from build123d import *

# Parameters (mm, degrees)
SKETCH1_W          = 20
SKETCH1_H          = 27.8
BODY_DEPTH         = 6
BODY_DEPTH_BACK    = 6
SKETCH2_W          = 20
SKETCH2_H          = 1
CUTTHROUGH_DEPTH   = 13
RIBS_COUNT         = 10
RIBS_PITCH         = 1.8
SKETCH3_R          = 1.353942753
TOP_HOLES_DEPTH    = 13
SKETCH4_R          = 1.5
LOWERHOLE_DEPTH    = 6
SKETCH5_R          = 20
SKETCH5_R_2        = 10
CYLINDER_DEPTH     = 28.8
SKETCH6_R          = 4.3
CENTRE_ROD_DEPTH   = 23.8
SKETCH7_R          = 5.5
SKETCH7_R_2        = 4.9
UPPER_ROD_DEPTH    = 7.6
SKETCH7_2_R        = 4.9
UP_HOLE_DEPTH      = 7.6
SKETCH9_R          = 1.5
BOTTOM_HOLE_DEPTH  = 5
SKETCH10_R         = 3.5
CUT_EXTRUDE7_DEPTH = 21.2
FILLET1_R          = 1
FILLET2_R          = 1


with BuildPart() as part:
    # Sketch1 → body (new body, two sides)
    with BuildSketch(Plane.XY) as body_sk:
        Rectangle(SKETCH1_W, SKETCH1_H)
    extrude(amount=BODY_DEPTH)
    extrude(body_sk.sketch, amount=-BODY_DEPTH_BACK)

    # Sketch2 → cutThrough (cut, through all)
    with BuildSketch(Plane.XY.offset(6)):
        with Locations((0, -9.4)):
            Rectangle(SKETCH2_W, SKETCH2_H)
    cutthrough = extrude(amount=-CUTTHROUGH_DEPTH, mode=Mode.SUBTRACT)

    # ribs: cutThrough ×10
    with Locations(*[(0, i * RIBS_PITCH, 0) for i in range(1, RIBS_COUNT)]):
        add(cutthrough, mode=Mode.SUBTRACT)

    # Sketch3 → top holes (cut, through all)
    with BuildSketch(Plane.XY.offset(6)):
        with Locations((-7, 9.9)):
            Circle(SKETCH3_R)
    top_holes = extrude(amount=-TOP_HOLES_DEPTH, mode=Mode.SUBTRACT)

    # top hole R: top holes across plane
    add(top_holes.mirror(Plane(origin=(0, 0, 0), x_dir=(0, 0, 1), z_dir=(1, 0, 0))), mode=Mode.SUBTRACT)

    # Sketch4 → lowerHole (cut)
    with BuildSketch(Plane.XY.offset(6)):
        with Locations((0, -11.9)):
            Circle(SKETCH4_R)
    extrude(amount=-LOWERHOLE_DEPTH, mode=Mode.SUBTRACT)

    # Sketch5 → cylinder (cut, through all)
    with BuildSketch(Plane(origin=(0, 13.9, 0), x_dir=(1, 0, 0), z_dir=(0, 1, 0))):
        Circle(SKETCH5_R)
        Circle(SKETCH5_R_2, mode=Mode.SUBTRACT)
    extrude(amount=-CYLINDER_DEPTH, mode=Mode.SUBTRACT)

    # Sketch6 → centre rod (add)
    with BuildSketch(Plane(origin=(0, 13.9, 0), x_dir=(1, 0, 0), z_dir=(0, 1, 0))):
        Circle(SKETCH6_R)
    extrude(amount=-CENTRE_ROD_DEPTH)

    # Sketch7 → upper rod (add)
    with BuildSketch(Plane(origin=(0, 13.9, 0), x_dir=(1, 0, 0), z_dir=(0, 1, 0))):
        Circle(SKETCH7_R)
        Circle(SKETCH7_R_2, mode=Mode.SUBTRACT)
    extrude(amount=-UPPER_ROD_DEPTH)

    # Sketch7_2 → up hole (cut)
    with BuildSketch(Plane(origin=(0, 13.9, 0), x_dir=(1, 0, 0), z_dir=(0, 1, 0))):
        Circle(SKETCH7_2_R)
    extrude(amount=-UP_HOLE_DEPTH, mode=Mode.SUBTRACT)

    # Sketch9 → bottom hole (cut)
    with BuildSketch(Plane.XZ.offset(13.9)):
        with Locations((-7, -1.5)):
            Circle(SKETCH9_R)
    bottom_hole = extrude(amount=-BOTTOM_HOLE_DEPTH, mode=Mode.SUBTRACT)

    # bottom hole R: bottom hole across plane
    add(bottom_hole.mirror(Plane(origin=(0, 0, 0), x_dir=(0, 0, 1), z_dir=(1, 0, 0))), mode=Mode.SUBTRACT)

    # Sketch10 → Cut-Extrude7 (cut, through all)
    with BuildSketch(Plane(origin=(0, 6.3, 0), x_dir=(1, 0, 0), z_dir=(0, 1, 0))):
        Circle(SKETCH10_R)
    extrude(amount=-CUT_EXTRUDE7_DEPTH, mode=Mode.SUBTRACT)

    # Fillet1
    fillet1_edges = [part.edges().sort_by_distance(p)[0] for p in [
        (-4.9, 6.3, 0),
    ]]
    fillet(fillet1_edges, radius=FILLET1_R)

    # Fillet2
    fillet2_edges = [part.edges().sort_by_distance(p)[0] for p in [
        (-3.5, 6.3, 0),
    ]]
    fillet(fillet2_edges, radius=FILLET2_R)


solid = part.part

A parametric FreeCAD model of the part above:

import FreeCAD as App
import Part
import Sketcher
from FreeCAD import Vector


def edges_at(feature, points):
    """Names of the edges that pass closest to the given points."""
    edges = feature.Shape.Edges
    near = lambda p: min(range(len(edges)), key=lambda i: edges[i].distToShape(Part.Vertex(*p))[0])
    return sorted({f"Edge{near(p) + 1}" for p in points})

doc = App.newDocument("Part")
body = doc.addObject("PartDesign::Body", "Body")
body.AllowCompound = True

sketch1 = doc.addObject("Sketcher::SketchObject", "Sketch")
body.addObject(sketch1)
sketch1.AttachmentSupport = (doc.XY_Plane, [""])
sketch1.MapMode = "FlatFace"
sketch1.addGeometry(Part.LineSegment(Vector(-10, 14, 0), Vector(-10, -14, 0)), False)
sketch1.addGeometry(Part.LineSegment(Vector(-10, -14, 0), Vector(10, -14, 0)), False)
sketch1.addGeometry(Part.LineSegment(Vector(10, -14, 0), Vector(10, 14, 0)), False)
sketch1.addGeometry(Part.LineSegment(Vector(10, 14, 0), Vector(-10, 14, 0)), False)
sketch1.addConstraint(Sketcher.Constraint("Coincident", 0, 2, 1, 1))
sketch1.addConstraint(Sketcher.Constraint("Coincident", 1, 2, 2, 1))
sketch1.addConstraint(Sketcher.Constraint("Coincident", 2, 2, 3, 1))
sketch1.addConstraint(Sketcher.Constraint("Coincident", 3, 2, 0, 1))
sketch1.addConstraint(Sketcher.Constraint("Vertical", 0))
sketch1.addConstraint(Sketcher.Constraint("Horizontal", 1))
sketch1.addConstraint(Sketcher.Constraint("Vertical", 2))
sketch1.addConstraint(Sketcher.Constraint("Horizontal", 3))
sketch1.addConstraint(Sketcher.Constraint("Symmetric", 0, 2, 2, 2, -1, 1))
sketch1.addConstraint(Sketcher.Constraint("DistanceX", 1, 1, 1, 2, 20.0))
sketch1.addConstraint(Sketcher.Constraint("DistanceY", 0, 2, 0, 1, 27.8))
pad1 = doc.addObject("PartDesign::Pad", "Pad")
body.addObject(pad1)
pad1.Profile = sketch1
pad1.Type = "TwoLengths"
pad1.Length = 6
pad1.Length2 = 6

sketch2 = doc.addObject("Sketcher::SketchObject", "Sketch001")
body.addObject(sketch2)
sketch2.AttachmentSupport = (doc.XY_Plane, [""])
sketch2.MapMode = "FlatFace"
sketch2.AttachmentOffset = App.Placement(Vector(0, 0, 6), App.Rotation())
sketch2.addGeometry(Part.LineSegment(Vector(-10, -8.9, 0), Vector(-10, -9.9, 0)), False)
sketch2.addGeometry(Part.LineSegment(Vector(-10, -9.9, 0), Vector(10, -9.9, 0)), False)
sketch2.addGeometry(Part.LineSegment(Vector(10, -9.9, 0), Vector(10, -8.9, 0)), False)
sketch2.addGeometry(Part.LineSegment(Vector(10, -8.9, 0), Vector(-10, -8.9, 0)), False)
sketch2.addConstraint(Sketcher.Constraint("Coincident", 0, 2, 1, 1))
sketch2.addConstraint(Sketcher.Constraint("Coincident", 1, 2, 2, 1))
sketch2.addConstraint(Sketcher.Constraint("Coincident", 2, 2, 3, 1))
sketch2.addConstraint(Sketcher.Constraint("Coincident", 3, 2, 0, 1))
sketch2.addConstraint(Sketcher.Constraint("Vertical", 0))
sketch2.addConstraint(Sketcher.Constraint("Horizontal", 1))
sketch2.addConstraint(Sketcher.Constraint("Vertical", 2))
sketch2.addConstraint(Sketcher.Constraint("Horizontal", 3))
sketch2.addConstraint(Sketcher.Constraint("DistanceX", 1, 1, 1, 2, 20.0))
sketch2.addConstraint(Sketcher.Constraint("DistanceY", 0, 2, 0, 1, 1.0))
sketch2.addConstraint(Sketcher.Constraint("DistanceX", 0, 2, -1, 1, 10.0))
sketch2.addConstraint(Sketcher.Constraint("DistanceY", 0, 2, -1, 1, 9.9))
pocket1 = doc.addObject("PartDesign::Pocket", "Pocket")
body.addObject(pocket1)
pocket1.Profile = sketch2
pocket1.Type = "ThroughAll"
doc.recompute()

linearpattern = doc.addObject("PartDesign::LinearPattern", "LinearPattern")
body.addObject(linearpattern)
linearpattern.Originals = [pocket1]
linearpattern.Direction = (doc.Y_Axis, [""])
linearpattern.Mode = "offset"
linearpattern.Offset = 1.8
linearpattern.Occurrences = 10
body.Tip = linearpattern

sketch3 = doc.addObject("Sketcher::SketchObject", "Sketch002")
body.addObject(sketch3)
sketch3.AttachmentSupport = (doc.XY_Plane, [""])
sketch3.MapMode = "FlatFace"
sketch3.AttachmentOffset = App.Placement(Vector(0, 0, 6), App.Rotation())
sketch3.addGeometry(Part.Circle(Vector(-7, 9.9, 0), Vector(0, 0, 1), 1.4), False)
sketch3.addConstraint(Sketcher.Constraint("DistanceX", 0, 3, -1, 1, 7.0))
sketch3.addConstraint(Sketcher.Constraint("DistanceY", -1, 1, 0, 3, 9.9))
sketch3.addConstraint(Sketcher.Constraint("Diameter", 0, 2.707886))
pocket2 = doc.addObject("PartDesign::Pocket", "Pocket001")
body.addObject(pocket2)
pocket2.Profile = sketch3
pocket2.Type = "ThroughAll"
doc.recompute()

mirrored = doc.addObject("PartDesign::Mirrored", "Mirrored")
body.addObject(mirrored)
mirrored.Originals = [pocket2]
mirrored.MirrorPlane = (doc.YZ_Plane, [""])
body.Tip = mirrored

sketch4 = doc.addObject("Sketcher::SketchObject", "Sketch003")
body.addObject(sketch4)
sketch4.AttachmentSupport = (doc.XY_Plane, [""])
sketch4.MapMode = "FlatFace"
sketch4.AttachmentOffset = App.Placement(Vector(0, 0, 6), App.Rotation())
sketch4.addGeometry(Part.Circle(Vector(0, -11.9, 0), Vector(0, 0, 1), 1.5), False)
sketch4.addConstraint(Sketcher.Constraint("PointOnObject", 0, 3, -2))
sketch4.addConstraint(Sketcher.Constraint("Diameter", 0, 3.0))
sketch4.addConstraint(Sketcher.Constraint("DistanceY", 0, 3, -1, 1, 11.9))
pocket3 = doc.addObject("PartDesign::Pocket", "Pocket002")
body.addObject(pocket3)
pocket3.Profile = sketch4
pocket3.Length = 6

sketch5 = doc.addObject("Sketcher::SketchObject", "Sketch004")
body.addObject(sketch5)
sketch5.AttachmentSupport = (doc.XZ_Plane, [""])
sketch5.MapMode = "FlatFace"
sketch5.AttachmentOffset = App.Placement(Vector(0, 0, -13.9), App.Rotation())
sketch5.addGeometry(Part.Circle(Vector(0, 0, 0), Vector(0, 0, 1), 20), False)
sketch5.addGeometry(Part.Circle(Vector(0, 0, 0), Vector(0, 0, 1), 10), False)
sketch5.addConstraint(Sketcher.Constraint("Coincident", 0, 3, -1, 1))
sketch5.addConstraint(Sketcher.Constraint("Coincident", 1, 3, -1, 1))
sketch5.addConstraint(Sketcher.Constraint("Diameter", 0, 40.0))
sketch5.addConstraint(Sketcher.Constraint("Diameter", 1, 20.0))
pocket4 = doc.addObject("PartDesign::Pocket", "Pocket003")
body.addObject(pocket4)
pocket4.Profile = sketch5
pocket4.Type = "ThroughAll"
pocket4.Reversed = True

sketch6 = doc.addObject("Sketcher::SketchObject", "Sketch005")
body.addObject(sketch6)
sketch6.AttachmentSupport = (doc.XZ_Plane, [""])
sketch6.MapMode = "FlatFace"
sketch6.AttachmentOffset = App.Placement(Vector(0, 0, -13.9), App.Rotation())
sketch6.addGeometry(Part.Circle(Vector(0, 0, 0), Vector(0, 0, 1), 4.3), False)
sketch6.addConstraint(Sketcher.Constraint("Coincident", 0, 3, -1, 1))
sketch6.addConstraint(Sketcher.Constraint("Diameter", 0, 8.6))
pad2 = doc.addObject("PartDesign::Pad", "Pad001")
body.addObject(pad2)
pad2.Profile = sketch6
pad2.Length = 23.8

sketch7 = doc.addObject("Sketcher::SketchObject", "Sketch006")
body.addObject(sketch7)
sketch7.AttachmentSupport = (doc.XZ_Plane, [""])
sketch7.MapMode = "FlatFace"
sketch7.AttachmentOffset = App.Placement(Vector(0, 0, -13.9), App.Rotation())
sketch7.addGeometry(Part.Circle(Vector(0, 0, 0), Vector(0, 0, 1), 5.5), False)
sketch7.addGeometry(Part.Circle(Vector(0, 0, 0), Vector(0, 0, 1), 4.9), False)
sketch7.addConstraint(Sketcher.Constraint("Coincident", 0, 3, -1, 1))
sketch7.addConstraint(Sketcher.Constraint("Coincident", 1, 3, -1, 1))
sketch7.addConstraint(Sketcher.Constraint("Diameter", 0, 11.0))
sketch7.addConstraint(Sketcher.Constraint("Diameter", 1, 9.8))
pad3 = doc.addObject("PartDesign::Pad", "Pad002")
body.addObject(pad3)
pad3.Profile = sketch7
pad3.Length = 7.6

sketch8 = doc.addObject("Sketcher::SketchObject", "Sketch007")
body.addObject(sketch8)
sketch8.AttachmentSupport = (doc.XZ_Plane, [""])
sketch8.MapMode = "FlatFace"
sketch8.AttachmentOffset = App.Placement(Vector(0, 0, -13.9), App.Rotation())
sketch8.addGeometry(Part.Circle(Vector(0, 0, 0), Vector(0, 0, 1), 4.9), False)
sketch8.addConstraint(Sketcher.Constraint("Coincident", 0, 3, -1, 1))
sketch8.addConstraint(Sketcher.Constraint("Diameter", 0, 9.8))
pocket5 = doc.addObject("PartDesign::Pocket", "Pocket004")
body.addObject(pocket5)
pocket5.Profile = sketch8
pocket5.Length = 7.6
pocket5.Reversed = True

sketch9 = doc.addObject("Sketcher::SketchObject", "Sketch008")
body.addObject(sketch9)
sketch9.AttachmentSupport = (doc.XZ_Plane, [""])
sketch9.MapMode = "FlatFace"
sketch9.AttachmentOffset = App.Placement(Vector(0, 0, 13.9), App.Rotation())
sketch9.addGeometry(Part.Circle(Vector(-7, -1.5, 0), Vector(0, 0, 1), 1.5), False)
sketch9.addConstraint(Sketcher.Constraint("Diameter", 0, 3.0))
sketch9.addConstraint(Sketcher.Constraint("DistanceX", 0, 3, -1, 1, 7.0))
sketch9.addConstraint(Sketcher.Constraint("DistanceY", 0, 3, -1, 1, 1.5))
pocket6 = doc.addObject("PartDesign::Pocket", "Pocket005")
body.addObject(pocket6)
pocket6.Profile = sketch9
pocket6.Length = 5
doc.recompute()

mirrored2 = doc.addObject("PartDesign::Mirrored", "Mirrored001")
body.addObject(mirrored2)
mirrored2.Originals = [pocket6]
mirrored2.MirrorPlane = (doc.YZ_Plane, [""])
body.Tip = mirrored2

sketch10 = doc.addObject("Sketcher::SketchObject", "Sketch009")
body.addObject(sketch10)
sketch10.AttachmentSupport = (doc.XZ_Plane, [""])
sketch10.MapMode = "FlatFace"
sketch10.AttachmentOffset = App.Placement(Vector(0, 0, -6.3), App.Rotation())
sketch10.addGeometry(Part.Circle(Vector(0, 0, 0), Vector(0, 0, 1), 3.5), False)
sketch10.addConstraint(Sketcher.Constraint("Coincident", 0, 3, -1, 1))
sketch10.addConstraint(Sketcher.Constraint("Diameter", 0, 7.0))
pocket7 = doc.addObject("PartDesign::Pocket", "Pocket006")
body.addObject(pocket7)
pocket7.Profile = sketch10
pocket7.Type = "ThroughAll"
pocket7.Reversed = True
doc.recompute()

fillet = doc.addObject("PartDesign::Fillet", "Fillet")
body.addObject(fillet)
fillet.Base = (pocket7, edges_at(pocket7, [(-4.9, 6.3, 0)]))
fillet.Radius = 1
doc.recompute()

fillet2 = doc.addObject("PartDesign::Fillet", "Fillet001")
body.addObject(fillet2)
fillet2.Base = (fillet, edges_at(fillet, [(-3.5, 6.3, 0)]))
fillet2.Radius = 1

doc.recompute()
